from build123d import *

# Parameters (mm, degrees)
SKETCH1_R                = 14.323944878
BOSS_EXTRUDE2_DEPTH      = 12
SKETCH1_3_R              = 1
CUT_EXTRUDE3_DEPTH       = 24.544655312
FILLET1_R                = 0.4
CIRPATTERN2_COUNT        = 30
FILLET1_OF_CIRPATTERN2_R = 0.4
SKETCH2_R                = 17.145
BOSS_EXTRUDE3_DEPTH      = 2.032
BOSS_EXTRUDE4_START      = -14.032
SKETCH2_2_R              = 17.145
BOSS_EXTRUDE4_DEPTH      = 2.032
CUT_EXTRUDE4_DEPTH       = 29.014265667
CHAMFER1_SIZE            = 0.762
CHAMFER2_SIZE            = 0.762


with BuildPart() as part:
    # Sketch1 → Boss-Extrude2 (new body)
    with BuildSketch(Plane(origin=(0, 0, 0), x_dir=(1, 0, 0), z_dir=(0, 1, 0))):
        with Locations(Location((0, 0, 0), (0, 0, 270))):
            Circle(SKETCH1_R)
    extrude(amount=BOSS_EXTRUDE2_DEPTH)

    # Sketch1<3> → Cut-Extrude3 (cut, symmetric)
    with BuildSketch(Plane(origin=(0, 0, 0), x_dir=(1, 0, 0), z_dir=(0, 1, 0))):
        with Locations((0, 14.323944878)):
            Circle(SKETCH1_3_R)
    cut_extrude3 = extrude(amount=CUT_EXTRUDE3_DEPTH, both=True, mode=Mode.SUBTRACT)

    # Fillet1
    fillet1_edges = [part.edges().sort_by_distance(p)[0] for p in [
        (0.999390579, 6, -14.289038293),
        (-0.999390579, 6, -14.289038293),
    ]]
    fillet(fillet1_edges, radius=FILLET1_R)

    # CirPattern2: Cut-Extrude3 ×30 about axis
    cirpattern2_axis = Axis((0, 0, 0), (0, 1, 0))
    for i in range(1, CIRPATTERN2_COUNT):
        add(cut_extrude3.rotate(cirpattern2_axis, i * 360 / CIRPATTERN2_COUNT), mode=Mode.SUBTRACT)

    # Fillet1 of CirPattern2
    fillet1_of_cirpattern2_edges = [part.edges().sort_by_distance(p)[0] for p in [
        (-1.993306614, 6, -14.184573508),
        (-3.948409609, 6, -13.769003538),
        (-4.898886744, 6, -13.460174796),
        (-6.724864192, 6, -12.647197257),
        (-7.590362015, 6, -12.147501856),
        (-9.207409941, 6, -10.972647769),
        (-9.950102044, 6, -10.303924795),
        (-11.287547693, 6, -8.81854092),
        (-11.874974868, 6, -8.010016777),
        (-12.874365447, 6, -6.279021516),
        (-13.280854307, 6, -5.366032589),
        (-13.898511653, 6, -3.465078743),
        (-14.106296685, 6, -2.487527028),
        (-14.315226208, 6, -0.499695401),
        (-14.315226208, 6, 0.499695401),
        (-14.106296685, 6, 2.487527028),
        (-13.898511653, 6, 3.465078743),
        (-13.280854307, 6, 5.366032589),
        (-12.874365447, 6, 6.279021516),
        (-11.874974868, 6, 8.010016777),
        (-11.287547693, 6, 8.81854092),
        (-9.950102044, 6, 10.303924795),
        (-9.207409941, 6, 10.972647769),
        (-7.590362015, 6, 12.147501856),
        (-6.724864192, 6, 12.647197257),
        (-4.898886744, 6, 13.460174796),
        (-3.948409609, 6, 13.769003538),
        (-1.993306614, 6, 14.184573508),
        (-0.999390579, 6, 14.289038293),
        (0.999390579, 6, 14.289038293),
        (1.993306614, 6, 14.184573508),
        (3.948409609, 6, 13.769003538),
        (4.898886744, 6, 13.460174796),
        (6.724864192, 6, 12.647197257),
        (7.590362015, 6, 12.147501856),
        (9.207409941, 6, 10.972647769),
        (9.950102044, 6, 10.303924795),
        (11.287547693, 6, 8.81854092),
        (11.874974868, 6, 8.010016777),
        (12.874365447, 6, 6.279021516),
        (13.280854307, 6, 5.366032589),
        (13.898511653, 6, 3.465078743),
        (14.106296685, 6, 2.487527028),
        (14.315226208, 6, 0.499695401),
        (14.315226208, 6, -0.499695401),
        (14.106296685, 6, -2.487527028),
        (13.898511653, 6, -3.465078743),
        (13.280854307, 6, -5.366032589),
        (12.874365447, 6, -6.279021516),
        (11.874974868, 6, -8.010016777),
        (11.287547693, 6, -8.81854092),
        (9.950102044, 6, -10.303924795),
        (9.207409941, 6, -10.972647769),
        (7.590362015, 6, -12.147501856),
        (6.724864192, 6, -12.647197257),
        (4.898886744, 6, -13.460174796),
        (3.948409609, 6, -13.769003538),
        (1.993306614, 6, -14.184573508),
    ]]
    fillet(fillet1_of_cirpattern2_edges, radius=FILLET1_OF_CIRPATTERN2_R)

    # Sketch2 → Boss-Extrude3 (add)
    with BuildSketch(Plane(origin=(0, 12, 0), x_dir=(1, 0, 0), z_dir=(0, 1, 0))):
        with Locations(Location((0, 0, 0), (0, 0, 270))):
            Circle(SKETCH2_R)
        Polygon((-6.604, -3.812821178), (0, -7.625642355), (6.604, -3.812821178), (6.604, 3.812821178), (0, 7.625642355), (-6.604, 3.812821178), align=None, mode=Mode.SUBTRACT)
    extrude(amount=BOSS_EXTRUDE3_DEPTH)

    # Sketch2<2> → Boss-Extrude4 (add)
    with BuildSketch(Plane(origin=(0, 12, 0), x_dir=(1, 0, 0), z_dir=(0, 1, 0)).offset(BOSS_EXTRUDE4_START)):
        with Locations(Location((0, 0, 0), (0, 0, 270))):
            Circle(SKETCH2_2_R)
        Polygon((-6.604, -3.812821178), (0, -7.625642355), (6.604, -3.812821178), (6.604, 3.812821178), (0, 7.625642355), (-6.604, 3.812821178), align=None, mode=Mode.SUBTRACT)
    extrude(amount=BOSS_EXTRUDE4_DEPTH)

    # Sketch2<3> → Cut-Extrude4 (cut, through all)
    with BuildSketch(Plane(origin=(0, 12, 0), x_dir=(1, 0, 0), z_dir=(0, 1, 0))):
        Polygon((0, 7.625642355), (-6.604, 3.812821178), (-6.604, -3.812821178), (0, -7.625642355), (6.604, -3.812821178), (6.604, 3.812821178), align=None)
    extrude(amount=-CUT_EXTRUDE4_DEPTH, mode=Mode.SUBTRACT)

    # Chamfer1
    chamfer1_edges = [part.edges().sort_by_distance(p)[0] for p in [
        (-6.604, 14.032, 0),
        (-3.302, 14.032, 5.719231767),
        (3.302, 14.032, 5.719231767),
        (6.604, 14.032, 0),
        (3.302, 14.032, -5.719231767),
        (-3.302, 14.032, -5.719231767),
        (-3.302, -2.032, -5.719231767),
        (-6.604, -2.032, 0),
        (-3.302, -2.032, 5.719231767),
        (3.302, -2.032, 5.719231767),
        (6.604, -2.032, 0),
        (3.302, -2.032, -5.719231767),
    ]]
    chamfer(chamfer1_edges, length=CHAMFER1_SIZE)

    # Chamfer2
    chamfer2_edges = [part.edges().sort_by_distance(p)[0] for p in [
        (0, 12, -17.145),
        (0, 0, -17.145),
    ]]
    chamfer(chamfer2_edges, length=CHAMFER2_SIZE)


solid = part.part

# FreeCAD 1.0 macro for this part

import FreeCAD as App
import Part
import Sketcher
Q = App.Units.Quantity


def edges_at(feature, points):
    """Names of the edges that pass closest to the given points."""
    edges = feature.Shape.Edges
    near = lambda p: min(range(len(edges)), key=lambda i: edges[i].distToShape(Part.Vertex(*p))[0])
    return sorted({f"Edge{near(p) + 1}" for p in points})

doc = App.newDocument("Part")
params = doc.addObject("Spreadsheet::Sheet", "Params")
for row, (alias, value) in enumerate([
    ("pad1_length", "12 mm"),
    ("sketch2_diameter", "2 mm"),
    ("pocket1_length", "49.089311 mm"),
    ("fillet_radius", "0.4 mm"),
    ("fillet2_radius", "0.4 mm"),
    ("sketch3_diameter", "34.29 mm"),
    ("pad2_length", "2.032 mm"),
    ("sketch4_diameter", "34.29 mm"),
    ("pad3_length", "2.032 mm"),
    ("chamfer_size", "0.762 mm"),
    ("chamfer2_size", "0.762 mm"),
], start=1):
    params.set(f"A{row}", alias)
    params.set(f"B{row}", "=" + value)
    params.setAlias(f"B{row}", alias)

body = doc.addObject("PartDesign::Body", "Body")

# Sketch on XZ plane
sketch1 = body.newObject("Sketcher::SketchObject", "Sketch")
sketch1.AttachmentSupport = (doc.getObject("XZ_Plane"), [""])
sketch1.MapMode = "FlatFace"
sketch1.addGeometry(Part.Circle(App.Vector(0, 0, 0), App.Vector(0, 0, 1), 14.323945), False)
sketch1.addConstraint(Sketcher.Constraint("Coincident", 0, 3, -1, 1))
sketch1.addConstraint(Sketcher.Constraint("Diameter", 0, 28.64789))
pad1 = body.newObject("PartDesign::Pad", "Pad")
pad1.Profile = sketch1
pad1.setExpression("Length", "Params.pad1_length")
pad1.Reversed = True

# Sketch on XZ plane
sketch2 = body.newObject("Sketcher::SketchObject", "Sketch001")
sketch2.AttachmentSupport = (doc.getObject("XZ_Plane"), [""])
sketch2.MapMode = "FlatFace"
sketch2.addGeometry(Part.Circle(App.Vector(0, -14.323945, 0), App.Vector(0, 0, 1), 1), False)
sketch2.addConstraint(Sketcher.Constraint("PointOnObject", 0, 3, -2))
sketch2.addConstraint(Sketcher.Constraint("Diameter", 0, 2.0))
sketch2.addConstraint(Sketcher.Constraint("DistanceY", 0, 3, -1, 1, 14.323945))
sketch2.setExpression("Constraints[1]", "Params.sketch2_diameter")
pocket1 = body.newObject("PartDesign::Pocket", "Pocket")
pocket1.Profile = sketch2
pocket1.setExpression("Length", "Params.pocket1_length")
pocket1.Midplane = True
doc.recompute()

fillet = body.newObject("PartDesign::Fillet", "Fillet")
fillet.Base = (pocket1, edges_at(pocket1, [(0.999, 6, -14.289), (-0.999, 6, -14.289)]))
fillet.setExpression("Radius", "Params.fillet_radius")
doc.recompute()

polarpattern = body.newObject("PartDesign::PolarPattern", "PolarPattern")
polarpattern.Originals = [pocket1]
polarpattern.Axis = (doc.getObject("Y_Axis"), [""])
polarpattern.Angle = 360
polarpattern.Occurrences = 30
body.Tip = polarpattern
doc.recompute()

fillet2 = body.newObject("PartDesign::Fillet", "Fillet001")
fillet2.Base = (polarpattern, edges_at(polarpattern, [
    (-1.993, 6, -14.185),
    (-3.948, 6, -13.769),
    (-4.899, 6, -13.46),
    (-6.725, 6, -12.647),
    (-7.59, 6, -12.148),
    (-9.207, 6, -10.973),
    (-9.95, 6, -10.304),
    (-11.288, 6, -8.819),
    (-11.875, 6, -8.01),
    (-12.874, 6, -6.279),
    (-13.281, 6, -5.366),
    (-13.899, 6, -3.465),
    (-14.106, 6, -2.488),
    (-14.315, 6, -0.5),
    (-14.315, 6, 0.5),
    (-14.106, 6, 2.488),
    (-13.899, 6, 3.465),
    (-13.281, 6, 5.366),
    (-12.874, 6, 6.279),
    (-11.875, 6, 8.01),
    (-11.288, 6, 8.819),
    (-9.95, 6, 10.304),
    (-9.207, 6, 10.973),
    (-7.59, 6, 12.148),
    (-6.725, 6, 12.647),
    (-4.899, 6, 13.46),
    (-3.948, 6, 13.769),
    (-1.993, 6, 14.185),
    (-0.999, 6, 14.289),
    (0.999, 6, 14.289),
    (1.993, 6, 14.185),
    (3.948, 6, 13.769),
    (4.899, 6, 13.46),
    (6.725, 6, 12.647),
    (7.59, 6, 12.148),
    (9.207, 6, 10.973),
    (9.95, 6, 10.304),
    (11.288, 6, 8.819),
    (11.875, 6, 8.01),
    (12.874, 6, 6.279),
    (13.281, 6, 5.366),
    (13.899, 6, 3.465),
    (14.106, 6, 2.488),
    (14.315, 6, 0.5),
    (14.315, 6, -0.5),
    (14.106, 6, -2.488),
    (13.899, 6, -3.465),
    (13.281, 6, -5.366),
    (12.874, 6, -6.279),
    (11.875, 6, -8.01),
    (11.288, 6, -8.819),
    (9.95, 6, -10.304),
    (9.207, 6, -10.973),
    (7.59, 6, -12.148),
    (6.725, 6, -12.647),
    (4.899, 6, -13.46),
    (3.948, 6, -13.769),
    (1.993, 6, -14.185),
]))
fillet2.setExpression("Radius", "Params.fillet2_radius")

# Sketch on XZ plane
sketch3 = body.newObject("Sketcher::SketchObject", "Sketch002")
sketch3.AttachmentSupport = (doc.getObject("XZ_Plane"), [""])
sketch3.MapMode = "FlatFace"
sketch3.AttachmentOffset = App.Placement(App.Vector(0, 0, -12), App.Rotation())
sketch3.addGeometry(Part.Circle(App.Vector(0, 0, 0), App.Vector(0, 0, 1), 17.145), False)
sketch3.addGeometry(Part.LineSegment(App.Vector(0, 7.625642, 0), App.Vector(-6.604, 3.812821, 0)), False)
sketch3.addGeometry(Part.LineSegment(App.Vector(-6.604, 3.812821, 0), App.Vector(-6.604, -3.812821, 0)), False)
sketch3.addGeometry(Part.LineSegment(App.Vector(-6.604, -3.812821, 0), App.Vector(0, -7.625642, 0)), False)
sketch3.addGeometry(Part.LineSegment(App.Vector(0, -7.625642, 0), App.Vector(6.604, -3.812821, 0)), False)
sketch3.addGeometry(Part.LineSegment(App.Vector(6.604, -3.812821, 0), App.Vector(6.604, 3.812821, 0)), False)
sketch3.addGeometry(Part.LineSegment(App.Vector(6.604, 3.812821, 0), App.Vector(0, 7.625642, 0)), False)
sketch3.addConstraint(Sketcher.Constraint("Coincident", 1, 2, 2, 1))
sketch3.addConstraint(Sketcher.Constraint("Coincident", 2, 2, 3, 1))
sketch3.addConstraint(Sketcher.Constraint("Coincident", 3, 2, 4, 1))
sketch3.addConstraint(Sketcher.Constraint("Coincident", 4, 2, 5, 1))
sketch3.addConstraint(Sketcher.Constraint("Coincident", 5, 2, 6, 1))
sketch3.addConstraint(Sketcher.Constraint("Coincident", 6, 2, 1, 1))
sketch3.addConstraint(Sketcher.Constraint("Vertical", 2))
sketch3.addConstraint(Sketcher.Constraint("Vertical", 5))
sketch3.addConstraint(Sketcher.Constraint("Coincident", 0, 3, -1, 1))
sketch3.addConstraint(Sketcher.Constraint("Symmetric", 1, 2, 4, 2, -1, 1))
sketch3.addConstraint(Sketcher.Constraint("Symmetric", 3, 2, 6, 2, -1, 1))
sketch3.addConstraint(Sketcher.Constraint("PointOnObject", 3, 2, -2))
sketch3.addConstraint(Sketcher.Constraint("Parallel", 3, 6))
sketch3.addConstraint(Sketcher.Constraint("Horizontal", 2, 2, 4, 2))
sketch3.addConstraint(Sketcher.Constraint("Diameter", 0, 34.29))
sketch3.addConstraint(Sketcher.Constraint("Angle", 1, Q("-150 deg")))
sketch3.addConstraint(Sketcher.Constraint("DistanceX", 1, 2, -1, 1, 6.604))
sketch3.addConstraint(Sketcher.Constraint("DistanceY", 2, 2, 2, 1, 7.625642))
sketch3.setExpression("Constraints[14]", "Params.sketch3_diameter")
pad2 = body.newObject("PartDesign::Pad", "Pad001")
pad2.Profile = sketch3
pad2.setExpression("Length", "Params.pad2_length")
pad2.Reversed = True

# Sketch on XZ plane
sketch4 = body.newObject("Sketcher::SketchObject", "Sketch003")
sketch4.AttachmentSupport = (doc.getObject("XZ_Plane"), [""])
sketch4.MapMode = "FlatFace"
sketch4.AttachmentOffset = App.Placement(App.Vector(0, 0, 2.032), App.Rotation())
sketch4.addGeometry(Part.Circle(App.Vector(0, 0, 0), App.Vector(0, 0, 1), 17.145), False)
sketch4.addGeometry(Part.LineSegment(App.Vector(0, 7.625642, 0), App.Vector(-6.604, 3.812821, 0)), False)
sketch4.addGeometry(Part.LineSegment(App.Vector(-6.604, 3.812821, 0), App.Vector(-6.604, -3.812821, 0)), False)
sketch4.addGeometry(Part.LineSegment(App.Vector(-6.604, -3.812821, 0), App.Vector(0, -7.625642, 0)), False)
sketch4.addGeometry(Part.LineSegment(App.Vector(0, -7.625642, 0), App.Vector(6.604, -3.812821, 0)), False)
sketch4.addGeometry(Part.LineSegment(App.Vector(6.604, -3.812821, 0), App.Vector(6.604, 3.812821, 0)), False)
sketch4.addGeometry(Part.LineSegment(App.Vector(6.604, 3.812821, 0), App.Vector(0, 7.625642, 0)), False)
sketch4.addConstraint(Sketcher.Constraint("Coincident", 1, 2, 2, 1))
sketch4.addConstraint(Sketcher.Constraint("Coincident", 2, 2, 3, 1))
sketch4.addConstraint(Sketcher.Constraint("Coincident", 3, 2, 4, 1))
sketch4.addConstraint(Sketcher.Constraint("Coincident", 4, 2, 5, 1))
sketch4.addConstraint(Sketcher.Constraint("Coincident", 5, 2, 6, 1))
sketch4.addConstraint(Sketcher.Constraint("Coincident", 6, 2, 1, 1))
sketch4.addConstraint(Sketcher.Constraint("Vertical", 2))
sketch4.addConstraint(Sketcher.Constraint("Vertical", 5))
sketch4.addConstraint(Sketcher.Constraint("Coincident", 0, 3, -1, 1))
sketch4.addConstraint(Sketcher.Constraint("Symmetric", 1, 2, 4, 2, -1, 1))
sketch4.addConstraint(Sketcher.Constraint("Symmetric", 3, 2, 6, 2, -1, 1))
sketch4.addConstraint(Sketcher.Constraint("PointOnObject", 3, 2, -2))
sketch4.addConstraint(Sketcher.Constraint("Parallel", 3, 6))
sketch4.addConstraint(Sketcher.Constraint("Horizontal", 2, 2, 4, 2))
sketch4.addConstraint(Sketcher.Constraint("Diameter", 0, 34.29))
sketch4.addConstraint(Sketcher.Constraint("Angle", 1, Q("-150 deg")))
sketch4.addConstraint(Sketcher.Constraint("DistanceX", 1, 2, -1, 1, 6.604))
sketch4.addConstraint(Sketcher.Constraint("DistanceY", 2, 2, 2, 1, 7.625642))
sketch4.setExpression("Constraints[14]", "Params.sketch4_diameter")
pad3 = body.newObject("PartDesign::Pad", "Pad002")
pad3.Profile = sketch4
pad3.setExpression("Length", "Params.pad3_length")
pad3.Reversed = True

# Sketch on XZ plane
sketch5 = body.newObject("Sketcher::SketchObject", "Sketch004")
sketch5.AttachmentSupport = (doc.getObject("XZ_Plane"), [""])
sketch5.MapMode = "FlatFace"
sketch5.AttachmentOffset = App.Placement(App.Vector(0, 0, -12), App.Rotation())
sketch5.addGeometry(Part.LineSegment(App.Vector(0, -7.625642, 0), App.Vector(-6.604, -3.812821, 0)), False)
sketch5.addGeometry(Part.LineSegment(App.Vector(-6.604, -3.812821, 0), App.Vector(-6.604, 3.812821, 0)), False)
sketch5.addGeometry(Part.LineSegment(App.Vector(-6.604, 3.812821, 0), App.Vector(0, 7.625642, 0)), False)
sketch5.addGeometry(Part.LineSegment(App.Vector(0, 7.625642, 0), App.Vector(6.604, 3.812821, 0)), False)
sketch5.addGeometry(Part.LineSegment(App.Vector(6.604, 3.812821, 0), App.Vector(6.604, -3.812821, 0)), False)
sketch5.addGeometry(Part.LineSegment(App.Vector(6.604, -3.812821, 0), App.Vector(0, -7.625642, 0)), False)
sketch5.addConstraint(Sketcher.Constraint("Coincident", 0, 2, 1, 1))
sketch5.addConstraint(Sketcher.Constraint("Coincident", 1, 2, 2, 1))
sketch5.addConstraint(Sketcher.Constraint("Coincident", 2, 2, 3, 1))
sketch5.addConstraint(Sketcher.Constraint("Coincident", 3, 2, 4, 1))
sketch5.addConstraint(Sketcher.Constraint("Coincident", 4, 2, 5, 1))
sketch5.addConstraint(Sketcher.Constraint("Coincident", 5, 2, 0, 1))
sketch5.addConstraint(Sketcher.Constraint("Vertical", 1))
sketch5.addConstraint(Sketcher.Constraint("Vertical", 4))
sketch5.addConstraint(Sketcher.Constraint("Symmetric", 0, 2, 3, 2, -1, 1))
sketch5.addConstraint(Sketcher.Constraint("Symmetric", 2, 2, 5, 2, -1, 1))
sketch5.addConstraint(Sketcher.Constraint("PointOnObject", 2, 2, -2))
sketch5.addConstraint(Sketcher.Constraint("Parallel", 2, 5))
sketch5.addConstraint(Sketcher.Constraint("Horizontal", 1, 2, 3, 2))
sketch5.addConstraint(Sketcher.Constraint("Angle", 0, Q("150 deg")))
sketch5.addConstraint(Sketcher.Constraint("DistanceX", 0, 2, -1, 1, 6.604))
sketch5.addConstraint(Sketcher.Constraint("DistanceY", 1, 1, 1, 2, 7.625642))
pocket2 = body.newObject("PartDesign::Pocket", "Pocket001")
pocket2.Profile = sketch5
pocket2.Type = "ThroughAll"
pocket2.Reversed = True
doc.recompute()

chamfer = body.newObject("PartDesign::Chamfer", "Chamfer")
chamfer.Base = (pocket2, edges_at(pocket2, [
    (-6.604, 14.032, 0),
    (-3.302, 14.032, 5.719),
    (3.302, 14.032, 5.719),
    (6.604, 14.032, 0),
    (3.302, 14.032, -5.719),
    (-3.302, 14.032, -5.719),
    (-3.302, -2.032, -5.719),
    (-6.604, -2.032, 0),
    (-3.302, -2.032, 5.719),
    (3.302, -2.032, 5.719),
    (6.604, -2.032, 0),
    (3.302, -2.032, -5.719),
]))
chamfer.setExpression("Size", "Params.chamfer_size")
doc.recompute()

chamfer2 = body.newObject("PartDesign::Chamfer", "Chamfer001")
chamfer2.Base = (chamfer, edges_at(chamfer, [(0, 12, -17.145), (0, 0, -17.145)]))
chamfer2.setExpression("Size", "Params.chamfer2_size")

doc.recompute()
